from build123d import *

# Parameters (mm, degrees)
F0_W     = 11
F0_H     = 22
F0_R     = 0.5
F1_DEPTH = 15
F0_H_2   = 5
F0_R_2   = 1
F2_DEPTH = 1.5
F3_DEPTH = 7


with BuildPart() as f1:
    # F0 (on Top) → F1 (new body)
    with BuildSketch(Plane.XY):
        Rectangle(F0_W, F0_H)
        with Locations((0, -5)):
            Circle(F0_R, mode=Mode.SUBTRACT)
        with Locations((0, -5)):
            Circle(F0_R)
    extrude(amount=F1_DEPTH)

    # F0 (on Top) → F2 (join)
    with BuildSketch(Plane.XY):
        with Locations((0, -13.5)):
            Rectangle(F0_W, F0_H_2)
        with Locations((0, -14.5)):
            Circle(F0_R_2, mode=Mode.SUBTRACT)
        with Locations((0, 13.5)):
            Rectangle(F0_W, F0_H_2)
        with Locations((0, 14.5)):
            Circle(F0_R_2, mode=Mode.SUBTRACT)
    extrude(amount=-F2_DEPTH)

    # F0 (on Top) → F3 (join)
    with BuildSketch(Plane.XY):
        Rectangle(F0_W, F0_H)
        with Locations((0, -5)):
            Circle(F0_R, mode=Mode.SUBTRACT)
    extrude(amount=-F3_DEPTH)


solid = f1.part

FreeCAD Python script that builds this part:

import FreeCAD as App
import Part
import Sketcher

doc = App.newDocument("Part")
body = doc.addObject("PartDesign::Body", "Body")
body.AllowCompound = True

# Sketch on XY plane
sketch1 = body.newObject("Sketcher::SketchObject", "Sketch")
sketch1.AttachmentSupport = (doc.getObject("XY_Plane"), [""])
sketch1.MapMode = "FlatFace"
sketch1.addGeometry([
    Part.LineSegment(App.Vector(-6, 11, 0), App.Vector(-6, -11, 0)),
    Part.LineSegment(App.Vector(-6, -11, 0), App.Vector(6, -11, 0)),
    Part.LineSegment(App.Vector(6, -11, 0), App.Vector(6, 11, 0)),
    Part.LineSegment(App.Vector(6, 11, 0), App.Vector(-6, 11, 0)),
], False)
sketch1.addConstraint([
    Sketcher.Constraint("Coincident", 0, 2, 1, 1),
    Sketcher.Constraint("Coincident", 1, 2, 2, 1),
    Sketcher.Constraint("Coincident", 2, 2, 3, 1),
    Sketcher.Constraint("Coincident", 3, 2, 0, 1),
    Sketcher.Constraint("Vertical", 0),
    Sketcher.Constraint("Horizontal", 1),
    Sketcher.Constraint("Vertical", 2),
    Sketcher.Constraint("Horizontal", 3),
    Sketcher.Constraint("Symmetric", 0, 2, 2, 2, -1, 1),
    Sketcher.Constraint("DistanceX", 1, 1, 1, 2, 11.0),
    Sketcher.Constraint("DistanceY", 0, 2, 0, 1, 22.0),
])
pad1 = body.newObject("PartDesign::Pad", "Pad")
pad1.Profile = sketch1
pad1.Length = 15

# Sketch on XY plane
sketch2 = body.newObject("Sketcher::SketchObject", "Sketch001")
sketch2.AttachmentSupport = (doc.getObject("XY_Plane"), [""])
sketch2.MapMode = "FlatFace"
sketch2.addGeometry([
    Part.LineSegment(App.Vector(-5.5, -11, 0), App.Vector(-5.5, -16, 0)),  # 0
    Part.LineSegment(App.Vector(-5.5, -16, 0), App.Vector(5.5, -16, 0)),  # 1
    Part.LineSegment(App.Vector(5.5, -16, 0), App.Vector(5.5, -11, 0)),  # 2
    Part.LineSegment(App.Vector(5.5, -11, 0), App.Vector(-5.5, -11, 0)),  # 3
    Part.Circle(App.Vector(0, -14.5, 0), App.Vector(0, 0, 1), 1),  # 4
    Part.LineSegment(App.Vector(-5.5, 16, 0), App.Vector(-5.5, 11, 0)),  # 5
    Part.LineSegment(App.Vector(-5.5, 11, 0), App.Vector(5.5, 11, 0)),  # 6
    Part.LineSegment(App.Vector(5.5, 11, 0), App.Vector(5.5, 16, 0)),  # 7
    Part.LineSegment(App.Vector(5.5, 16, 0), App.Vector(-5.5, 16, 0)),  # 8
    Part.Circle(App.Vector(0, 14.5, 0), App.Vector(0, 0, 1), 1),  # 9
], False)
sketch2.addConstraint([
    Sketcher.Constraint("Coincident", 0, 2, 1, 1),
    Sketcher.Constraint("Coincident", 1, 2, 2, 1),
    Sketcher.Constraint("Coincident", 2, 2, 3, 1),
    Sketcher.Constraint("Coincident", 3, 2, 0, 1),
    Sketcher.Constraint("Coincident", 5, 2, 6, 1),
    Sketcher.Constraint("Coincident", 6, 2, 7, 1),
    Sketcher.Constraint("Coincident", 7, 2, 8, 1),
    Sketcher.Constraint("Coincident", 8, 2, 5, 1),
    Sketcher.Constraint("Vertical", 0),
    Sketcher.Constraint("Horizontal", 1),
    Sketcher.Constraint("Vertical", 2),
    Sketcher.Constraint("Horizontal", 3),
    Sketcher.Constraint("Vertical", 5),
    Sketcher.Constraint("Horizontal", 6),
    Sketcher.Constraint("Vertical", 7),
    Sketcher.Constraint("Horizontal", 8),
    Sketcher.Constraint("Equal", 4, 9),
    Sketcher.Constraint("Symmetric", 4, 3, 9, 3, -1, 1),
    Sketcher.Constraint("Symmetric", 2, 2, 5, 2, -1, 1),
    Sketcher.Constraint("Symmetric", 0, 2, 7, 2, -1, 1),
    Sketcher.Constraint("PointOnObject", 4, 3, -2),
    Sketcher.Constraint("Vertical", 3, 2, 5, 2),
    Sketcher.Constraint("Diameter", 4, 2.0),
    Sketcher.Constraint("DistanceX", 1, 1, 1, 2, 11.0),
    Sketcher.Constraint("DistanceY", 0, 2, 0, 1, 5.0),
    Sketcher.Constraint("DistanceY", 0, 2, -1, 1, 16.0),
    Sketcher.Constraint("DistanceY", 4, 3, 9, 3, 29.0),
])
pad2 = body.newObject("PartDesign::Pad", "Pad001")
pad2.Profile = sketch2
pad2.Length = 1.5
pad2.Reversed = True

# Sketch on XY plane
sketch3 = body.newObject("Sketcher::SketchObject", "Sketch002")
sketch3.AttachmentSupport = (doc.getObject("XY_Plane"), [""])
sketch3.MapMode = "FlatFace"
sketch3.addGeometry([
    Part.LineSegment(App.Vector(-5.5, 11, 0), App.Vector(-5.5, -11, 0)),  # 0
    Part.LineSegment(App.Vector(-5.5, -11, 0), App.Vector(5.5, -11, 0)),  # 1
    Part.LineSegment(App.Vector(5.5, -11, 0), App.Vector(5.5, 11, 0)),  # 2
    Part.LineSegment(App.Vector(5.5, 11, 0), App.Vector(-5.5, 11, 0)),  # 3
    Part.Circle(App.Vector(0, -5, 0), App.Vector(0, 0, 1), 0.5),  # 4
], False)
sketch3.addConstraint([
    Sketcher.Constraint("Coincident", 0, 2, 1, 1),
    Sketcher.Constraint("Coincident", 1, 2, 2, 1),
    Sketcher.Constraint("Coincident", 2, 2, 3, 1),
    Sketcher.Constraint("Coincident", 3, 2, 0, 1),
    Sketcher.Constraint("Vertical", 0),
    Sketcher.Constraint("Horizontal", 1),
    Sketcher.Constraint("Vertical", 2),
    Sketcher.Constraint("Horizontal", 3),
    Sketcher.Constraint("Symmetric", 0, 2, 2, 2, -1, 1),
    Sketcher.Constraint("PointOnObject", 4, 3, -2),
    Sketcher.Constraint("Diameter", 4, 1.0),
    Sketcher.Constraint("DistanceX", 1, 1, 1, 2, 11.0),
    Sketcher.Constraint("DistanceY", 0, 2, 0, 1, 22.0),
    Sketcher.Constraint("DistanceY", 4, 3, -1, 1, 5.0),
])
pad3 = body.newObject("PartDesign::Pad", "Pad002")
pad3.Profile = sketch3
pad3.Length = 7
pad3.Reversed = True

doc.recompute()
